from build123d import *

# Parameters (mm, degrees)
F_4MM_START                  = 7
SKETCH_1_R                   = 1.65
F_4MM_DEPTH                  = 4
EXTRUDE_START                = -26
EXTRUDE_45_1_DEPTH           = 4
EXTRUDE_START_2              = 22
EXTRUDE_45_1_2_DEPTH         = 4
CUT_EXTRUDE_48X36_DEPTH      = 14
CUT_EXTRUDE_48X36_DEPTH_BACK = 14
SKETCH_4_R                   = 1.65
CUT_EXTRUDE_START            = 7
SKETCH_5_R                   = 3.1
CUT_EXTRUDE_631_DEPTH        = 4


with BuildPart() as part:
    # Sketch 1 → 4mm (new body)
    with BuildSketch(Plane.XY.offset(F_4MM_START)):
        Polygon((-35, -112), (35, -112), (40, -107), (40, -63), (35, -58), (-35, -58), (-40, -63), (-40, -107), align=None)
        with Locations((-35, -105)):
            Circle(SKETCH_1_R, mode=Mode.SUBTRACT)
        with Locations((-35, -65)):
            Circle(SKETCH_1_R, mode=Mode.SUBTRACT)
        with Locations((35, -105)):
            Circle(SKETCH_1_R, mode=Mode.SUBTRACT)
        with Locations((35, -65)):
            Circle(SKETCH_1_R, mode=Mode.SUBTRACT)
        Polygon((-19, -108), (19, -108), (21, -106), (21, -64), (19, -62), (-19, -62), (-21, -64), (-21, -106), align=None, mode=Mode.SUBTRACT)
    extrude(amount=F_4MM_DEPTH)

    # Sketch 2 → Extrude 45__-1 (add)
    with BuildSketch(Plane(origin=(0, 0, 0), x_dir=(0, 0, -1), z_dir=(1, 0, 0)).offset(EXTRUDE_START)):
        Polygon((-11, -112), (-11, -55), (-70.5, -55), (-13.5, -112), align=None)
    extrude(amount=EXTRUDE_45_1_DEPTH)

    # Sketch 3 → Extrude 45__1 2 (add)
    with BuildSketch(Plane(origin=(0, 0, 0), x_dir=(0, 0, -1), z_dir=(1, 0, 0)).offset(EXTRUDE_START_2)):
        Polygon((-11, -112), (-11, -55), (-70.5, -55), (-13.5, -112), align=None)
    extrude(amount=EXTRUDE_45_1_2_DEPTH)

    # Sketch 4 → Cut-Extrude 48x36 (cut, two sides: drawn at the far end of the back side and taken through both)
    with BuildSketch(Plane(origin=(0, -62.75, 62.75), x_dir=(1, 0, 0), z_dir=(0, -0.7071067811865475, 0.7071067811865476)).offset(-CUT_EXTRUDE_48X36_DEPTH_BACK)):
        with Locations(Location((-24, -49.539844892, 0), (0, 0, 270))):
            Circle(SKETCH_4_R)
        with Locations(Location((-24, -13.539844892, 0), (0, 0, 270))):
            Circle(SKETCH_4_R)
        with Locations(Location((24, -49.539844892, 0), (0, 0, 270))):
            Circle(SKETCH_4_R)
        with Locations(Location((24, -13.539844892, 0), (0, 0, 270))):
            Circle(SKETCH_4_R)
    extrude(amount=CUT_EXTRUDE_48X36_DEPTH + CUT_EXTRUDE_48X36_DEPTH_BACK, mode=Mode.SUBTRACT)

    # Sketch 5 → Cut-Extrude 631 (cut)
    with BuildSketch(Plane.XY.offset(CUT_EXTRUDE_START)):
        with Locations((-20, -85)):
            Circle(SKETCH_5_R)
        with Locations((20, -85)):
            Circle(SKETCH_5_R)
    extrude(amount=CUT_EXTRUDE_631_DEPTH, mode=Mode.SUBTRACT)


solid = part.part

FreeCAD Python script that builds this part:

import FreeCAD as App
import Part
import Sketcher

V = App.Vector
Q = App.Units.Quantity

doc = App.newDocument("Part")
params = doc.addObject("Spreadsheet::Sheet", "Params")
for row, (alias, value) in enumerate([
    ("sketch1_diameter", "3.3 mm"),
    ("sketch1_width", "70 mm"),
    ("sketch1_width2", "38 mm"),
    ("sketch1_height", "44 mm"),
    ("sketch1_height2", "42 mm"),
    ("pad1_length", "4 mm"),
    ("sketch2_width", "57 mm"),
    ("sketch2_height", "59.5 mm"),
    ("pad2_length", "4 mm"),
    ("sketch3_width", "57 mm"),
    ("sketch3_height", "59.5 mm"),
    ("pad3_length", "4 mm"),
    ("sketch4_diameter", "3.3 mm"),
    ("pocket1_length", "14 mm"),
    ("pocket1_length2", "14 mm"),
    ("sketch5_diameter", "6.2 mm"),
    ("pocket2_length", "4 mm"),
], start=1):
    params.set(f"A{row}", alias)
    params.set(f"B{row}", "=" + value)
    params.setAlias(f"B{row}", alias)

body = doc.addObject("PartDesign::Body", "Body")

# Sketch on XY plane
sketch1 = body.newObject("Sketcher::SketchObject", "Sketch")
sketch1.AttachmentSupport = (doc.getObject("XY_Plane"), [""])
sketch1.MapMode = "FlatFace"
sketch1.AttachmentOffset = App.Placement(V(0, 0, 7), App.Rotation())
sketch1.addGeometry(Part.LineSegment(V(-35, -112, 0), V(35, -112, 0)), False)
sketch1.addGeometry(Part.LineSegment(V(35, -112, 0), V(40, -107, 0)), False)
sketch1.addGeometry(Part.LineSegment(V(40, -107, 0), V(40, -63, 0)), False)
sketch1.addGeometry(Part.LineSegment(V(40, -63, 0), V(35, -58, 0)), False)
sketch1.addGeometry(Part.LineSegment(V(35, -58, 0), V(-35, -58, 0)), False)
sketch1.addGeometry(Part.LineSegment(V(-35, -58, 0), V(-40, -63, 0)), False)
sketch1.addGeometry(Part.LineSegment(V(-40, -63, 0), V(-40, -107, 0)), False)
sketch1.addGeometry(Part.LineSegment(V(-40, -107, 0), V(-35, -112, 0)), False)
sketch1.addGeometry(Part.Circle(V(-35, -105, 0), V(0, 0, 1), 1.6), False)
sketch1.addGeometry(Part.Circle(V(35, -105, 0), V(0, 0, 1), 1.6), False)
sketch1.addGeometry(Part.Circle(V(-35, -65, 0), V(0, 0, 1), 1.6), False)
sketch1.addGeometry(Part.LineSegment(V(19, -108, 0), V(-19, -108, 0)), False)
sketch1.addGeometry(Part.LineSegment(V(-19, -108, 0), V(-21, -106, 0)), False)
sketch1.addGeometry(Part.LineSegment(V(-21, -106, 0), V(-21, -64, 0)), False)
sketch1.addGeometry(Part.LineSegment(V(-21, -64, 0), V(-19, -62, 0)), False)
sketch1.addGeometry(Part.LineSegment(V(-19, -62, 0), V(19, -62, 0)), False)
sketch1.addGeometry(Part.LineSegment(V(19, -62, 0), V(21, -64, 0)), False)
sketch1.addGeometry(Part.LineSegment(V(21, -64, 0), V(21, -106, 0)), False)
sketch1.addGeometry(Part.LineSegment(V(21, -106, 0), V(19, -108, 0)), False)
sketch1.addGeometry(Part.Circle(V(35, -65, 0), V(0, 0, 1), 1.6), False)
sketch1.addConstraint(Sketcher.Constraint("Coincident", 0, 2, 1, 1))
sketch1.addConstraint(Sketcher.Constraint("Coincident", 1, 2, 2, 1))
sketch1.addConstraint(Sketcher.Constraint("Coincident", 2, 2, 3, 1))
sketch1.addConstraint(Sketcher.Constraint("Coincident", 3, 2, 4, 1))
sketch1.addConstraint(Sketcher.Constraint("Coincident", 4, 2, 5, 1))
sketch1.addConstraint(Sketcher.Constraint("Coincident", 5, 2, 6, 1))
sketch1.addConstraint(Sketcher.Constraint("Coincident", 6, 2, 7, 1))
sketch1.addConstraint(Sketcher.Constraint("Coincident", 7, 2, 0, 1))
sketch1.addConstraint(Sketcher.Constraint("Coincident", 11, 2, 12, 1))
sketch1.addConstraint(Sketcher.Constraint("Coincident", 12, 2, 13, 1))
sketch1.addConstraint(Sketcher.Constraint("Coincident", 13, 2, 14, 1))
sketch1.addConstraint(Sketcher.Constraint("Coincident", 14, 2, 15, 1))
sketch1.addConstraint(Sketcher.Constraint("Coincident", 15, 2, 16, 1))
sketch1.addConstraint(Sketcher.Constraint("Coincident", 16, 2, 17, 1))
sketch1.addConstraint(Sketcher.Constraint("Coincident", 17, 2, 18, 1))
sketch1.addConstraint(Sketcher.Constraint("Coincident", 18, 2, 11, 1))
sketch1.addConstraint(Sketcher.Constraint("Horizontal", 0))
sketch1.addConstraint(Sketcher.Constraint("Vertical", 2))
sketch1.addConstraint(Sketcher.Constraint("Horizontal", 4))
sketch1.addConstraint(Sketcher.Constraint("Vertical", 6))
sketch1.addConstraint(Sketcher.Constraint("Horizontal", 11))
sketch1.addConstraint(Sketcher.Constraint("Vertical", 13))
sketch1.addConstraint(Sketcher.Constraint("Horizontal", 15))
sketch1.addConstraint(Sketcher.Constraint("Vertical", 17))
sketch1.addConstraint(Sketcher.Constraint("Equal", 8, 9))
sketch1.addConstraint(Sketcher.Constraint("Equal", 9, 10))
sketch1.addConstraint(Sketcher.Constraint("Equal", 10, 19))
sketch1.addConstraint(Sketcher.Constraint("Symmetric", 8, 3, 9, 3, -2))
sketch1.addConstraint(Sketcher.Constraint("Symmetric", 10, 3, 19, 3, -2))
sketch1.addConstraint(Sketcher.Constraint("Symmetric", 2, 2, 5, 2, -2))
sketch1.addConstraint(Sketcher.Constraint("Symmetric", 13, 2, 16, 2, -2))
sketch1.addConstraint(Sketcher.Constraint("Perpendicular", 1, 3))
sketch1.addConstraint(Sketcher.Constraint("Perpendicular", 3, 5))
sketch1.addConstraint(Sketcher.Constraint("Perpendicular", 5, 7))
sketch1.addConstraint(Sketcher.Constraint("Parallel", 7, 12))
sketch1.addConstraint(Sketcher.Constraint("Perpendicular", 12, 14))
sketch1.addConstraint(Sketcher.Constraint("Perpendicular", 14, 16))
sketch1.addConstraint(Sketcher.Constraint("Perpendicular", 16, 18))
sketch1.addConstraint(Sketcher.Constraint("Horizontal", 1, 2, 6, 2))
sketch1.addConstraint(Sketcher.Constraint("Horizontal", 12, 2, 17, 2))
sketch1.addConstraint(Sketcher.Constraint("Vertical", 8, 3, 10, 3))
sketch1.addConstraint(Sketcher.Constraint("Vertical", 19, 3, 0, 2))
sketch1.addConstraint(Sketcher.Constraint("Vertical", 0, 2, 3, 2))
sketch1.addConstraint(Sketcher.Constraint("Vertical", 10, 3, 4, 2))
sketch1.addConstraint(Sketcher.Constraint("Vertical", 11, 2, 14, 2))
sketch1.addConstraint(Sketcher.Constraint("Diameter", 8, 3.3))
sketch1.addConstraint(Sketcher.Constraint("DistanceX", 0, 1, 0, 2, 70.0))
sketch1.addConstraint(Sketcher.Constraint("DistanceX", 11, 2, 11, 1, 38.0))
sketch1.addConstraint(Sketcher.Constraint("DistanceY", 2, 1, 2, 2, 44.0))
sketch1.addConstraint(Sketcher.Constraint("DistanceY", 13, 1, 13, 2, 42.0))
sketch1.addConstraint(Sketcher.Constraint("DistanceY", 8, 3, -1, 1, 105.0))
sketch1.addConstraint(Sketcher.Constraint("DistanceY", 10, 3, -1, 1, 65.0))
sketch1.addConstraint(Sketcher.Constraint("DistanceY", 0, 2, -1, 1, 112.0))
sketch1.addConstraint(Sketcher.Constraint("DistanceX", -1, 1, 1, 2, 40.0))
sketch1.addConstraint(Sketcher.Constraint("DistanceY", 11, 2, -1, 1, 108.0))
sketch1.addConstraint(Sketcher.Constraint("DistanceX", 12, 2, -1, 1, 21.0))
sketch1.setExpression("Constraints[45]", "Params.sketch1_diameter")
sketch1.setExpression("Constraints[46]", "Params.sketch1_width")
sketch1.setExpression("Constraints[47]", "Params.sketch1_width2")
sketch1.setExpression("Constraints[48]", "Params.sketch1_height")
sketch1.setExpression("Constraints[49]", "Params.sketch1_height2")
pad1 = body.newObject("PartDesign::Pad", "Pad")
pad1.Profile = sketch1
pad1.setExpression("Length", "Params.pad1_length")

# Sketch on YZ plane
sketch2 = body.newObject("Sketcher::SketchObject", "Sketch001")
sketch2.AttachmentSupport = (doc.getObject("YZ_Plane"), [""])
sketch2.MapMode = "FlatFace"
sketch2.AttachmentOffset = App.Placement(V(0, 0, -26), App.Rotation())
sketch2.addGeometry(Part.LineSegment(V(-112, 11, 0), V(-55, 11, 0)), False)
sketch2.addGeometry(Part.LineSegment(V(-55, 11, 0), V(-55, 70.5, 0)), False)
sketch2.addGeometry(Part.LineSegment(V(-55, 70.5, 0), V(-112, 13.5, 0)), False)
sketch2.addGeometry(Part.LineSegment(V(-112, 13.5, 0), V(-112, 11, 0)), False)
sketch2.addConstraint(Sketcher.Constraint("Coincident", 0, 2, 1, 1))
sketch2.addConstraint(Sketcher.Constraint("Coincident", 1, 2, 2, 1))
sketch2.addConstraint(Sketcher.Constraint("Coincident", 2, 2, 3, 1))
sketch2.addConstraint(Sketcher.Constraint("Coincident", 3, 2, 0, 1))
sketch2.addConstraint(Sketcher.Constraint("Horizontal", 0))
sketch2.addConstraint(Sketcher.Constraint("Vertical", 1))
sketch2.addConstraint(Sketcher.Constraint("Vertical", 3))
sketch2.addConstraint(Sketcher.Constraint("DistanceX", 0, 1, 0, 2, 57.0))
sketch2.addConstraint(Sketcher.Constraint("Angle", 2, Q("-135 deg")))
sketch2.addConstraint(Sketcher.Constraint("DistanceY", 1, 1, 1, 2, 59.5))
sketch2.addConstraint(Sketcher.Constraint("DistanceX", 0, 2, -1, 1, 55.0))
sketch2.addConstraint(Sketcher.Constraint("DistanceY", -1, 1, 0, 2, 11.0))
sketch2.setExpression("Constraints[7]", "Params.sketch2_width")
sketch2.setExpression("Constraints[9]", "Params.sketch2_height")
pad2 = body.newObject("PartDesign::Pad", "Pad001")
pad2.Profile = sketch2
pad2.setExpression("Length", "Params.pad2_length")

# Sketch on YZ plane
sketch3 = body.newObject("Sketcher::SketchObject", "Sketch002")
sketch3.AttachmentSupport = (doc.getObject("YZ_Plane"), [""])
sketch3.MapMode = "FlatFace"
sketch3.AttachmentOffset = App.Placement(V(0, 0, 22), App.Rotation())
sketch3.addGeometry(Part.LineSegment(V(-112, 11, 0), V(-55, 11, 0)), False)
sketch3.addGeometry(Part.LineSegment(V(-55, 11, 0), V(-55, 70.5, 0)), False)
sketch3.addGeometry(Part.LineSegment(V(-55, 70.5, 0), V(-112, 13.5, 0)), False)
sketch3.addGeometry(Part.LineSegment(V(-112, 13.5, 0), V(-112, 11, 0)), False)
sketch3.addConstraint(Sketcher.Constraint("Coincident", 0, 2, 1, 1))
sketch3.addConstraint(Sketcher.Constraint("Coincident", 1, 2, 2, 1))
sketch3.addConstraint(Sketcher.Constraint("Coincident", 2, 2, 3, 1))
sketch3.addConstraint(Sketcher.Constraint("Coincident", 3, 2, 0, 1))
sketch3.addConstraint(Sketcher.Constraint("Horizontal", 0))
sketch3.addConstraint(Sketcher.Constraint("Vertical", 1))
sketch3.addConstraint(Sketcher.Constraint("Vertical", 3))
sketch3.addConstraint(Sketcher.Constraint("DistanceX", 0, 1, 0, 2, 57.0))
sketch3.addConstraint(Sketcher.Constraint("Angle", 2, Q("-135 deg")))
sketch3.addConstraint(Sketcher.Constraint("DistanceY", 1, 1, 1, 2, 59.5))
sketch3.addConstraint(Sketcher.Constraint("DistanceX", 0, 2, -1, 1, 55.0))
sketch3.addConstraint(Sketcher.Constraint("DistanceY", -1, 1, 0, 2, 11.0))
sketch3.setExpression("Constraints[7]", "Params.sketch3_width")
sketch3.setExpression("Constraints[9]", "Params.sketch3_height")
pad3 = body.newObject("PartDesign::Pad", "Pad002")
pad3.Profile = sketch3
pad3.setExpression("Length", "Params.pad3_length")

# Sketch on an angled plane
sketch4 = body.newObject("Sketcher::SketchObject", "Sketch003")
sketch4.Placement = App.Placement(V(0, -62.75, 62.75), App.Rotation(V(1, 0, 0), V(0, 0.707106781, 0.707106781), V(0, -0.707106781, 0.707106781), "ZXY"))
sketch4.addGeometry(Part.Circle(V(-24, -49.5, 0), V(0, 0, 1), 1.6), False)
sketch4.addGeometry(Part.Circle(V(-24, -13.5, 0), V(0, 0, 1), 1.6), False)
sketch4.addGeometry(Part.Circle(V(24, -49.5, 0), V(0, 0, 1), 1.6), False)
sketch4.addGeometry(Part.Circle(V(24, -13.5, 0), V(0, 0, 1), 1.6), False)
sketch4.addConstraint(Sketcher.Constraint("Equal", 0, 1))
sketch4.addConstraint(Sketcher.Constraint("Equal", 1, 2))
sketch4.addConstraint(Sketcher.Constraint("Equal", 2, 3))
sketch4.addConstraint(Sketcher.Constraint("Symmetric", 0, 3, 2, 3, -2))
sketch4.addConstraint(Sketcher.Constraint("Symmetric", 1, 3, 3, 3, -2))
sketch4.addConstraint(Sketcher.Constraint("Vertical", 0, 3, 1, 3))
sketch4.addConstraint(Sketcher.Constraint("Diameter", 0, 3.3))
sketch4.addConstraint(Sketcher.Constraint("DistanceX", 0, 3, -1, 1, 24.0))
sketch4.addConstraint(Sketcher.Constraint("DistanceY", 0, 3, 1, 3, 36.0))
sketch4.addConstraint(Sketcher.Constraint("DistanceY", 0, 3, -1, 1, 49.539845))
sketch4.setExpression("Constraints[6]", "Params.sketch4_diameter")
pocket1 = body.newObject("PartDesign::Pocket", "Pocket")
pocket1.Profile = sketch4
pocket1.Type = "TwoLengths"
pocket1.setExpression("Length", "Params.pocket1_length")
pocket1.setExpression("Length2", "Params.pocket1_length2")
pocket1.Reversed = True

# Sketch on XY plane
sketch5 = body.newObject("Sketcher::SketchObject", "Sketch004")
sketch5.AttachmentSupport = (doc.getObject("XY_Plane"), [""])
sketch5.MapMode = "FlatFace"
sketch5.AttachmentOffset = App.Placement(V(0, 0, 7), App.Rotation())
sketch5.addGeometry(Part.Circle(V(-20, -85, 0), V(0, 0, 1), 3.1), False)
sketch5.addGeometry(Part.Circle(V(20, -85, 0), V(0, 0, 1), 3.1), False)
sketch5.addConstraint(Sketcher.Constraint("Equal", 0, 1))
sketch5.addConstraint(Sketcher.Constraint("Symmetric", 0, 3, 1, 3, -2))
sketch5.addConstraint(Sketcher.Constraint("Diameter", 0, 6.2))
sketch5.addConstraint(Sketcher.Constraint("DistanceX", 0, 3, -1, 1, 20.0))
sketch5.addConstraint(Sketcher.Constraint("DistanceY", 0, 3, -1, 1, 85.0))
sketch5.setExpression("Constraints[2]", "Params.sketch5_diameter")
pocket2 = body.newObject("PartDesign::Pocket", "Pocket001")
pocket2.Profile = sketch5
pocket2.setExpression("Length", "Params.pocket2_length")
pocket2.Reversed = True

doc.recompute()
